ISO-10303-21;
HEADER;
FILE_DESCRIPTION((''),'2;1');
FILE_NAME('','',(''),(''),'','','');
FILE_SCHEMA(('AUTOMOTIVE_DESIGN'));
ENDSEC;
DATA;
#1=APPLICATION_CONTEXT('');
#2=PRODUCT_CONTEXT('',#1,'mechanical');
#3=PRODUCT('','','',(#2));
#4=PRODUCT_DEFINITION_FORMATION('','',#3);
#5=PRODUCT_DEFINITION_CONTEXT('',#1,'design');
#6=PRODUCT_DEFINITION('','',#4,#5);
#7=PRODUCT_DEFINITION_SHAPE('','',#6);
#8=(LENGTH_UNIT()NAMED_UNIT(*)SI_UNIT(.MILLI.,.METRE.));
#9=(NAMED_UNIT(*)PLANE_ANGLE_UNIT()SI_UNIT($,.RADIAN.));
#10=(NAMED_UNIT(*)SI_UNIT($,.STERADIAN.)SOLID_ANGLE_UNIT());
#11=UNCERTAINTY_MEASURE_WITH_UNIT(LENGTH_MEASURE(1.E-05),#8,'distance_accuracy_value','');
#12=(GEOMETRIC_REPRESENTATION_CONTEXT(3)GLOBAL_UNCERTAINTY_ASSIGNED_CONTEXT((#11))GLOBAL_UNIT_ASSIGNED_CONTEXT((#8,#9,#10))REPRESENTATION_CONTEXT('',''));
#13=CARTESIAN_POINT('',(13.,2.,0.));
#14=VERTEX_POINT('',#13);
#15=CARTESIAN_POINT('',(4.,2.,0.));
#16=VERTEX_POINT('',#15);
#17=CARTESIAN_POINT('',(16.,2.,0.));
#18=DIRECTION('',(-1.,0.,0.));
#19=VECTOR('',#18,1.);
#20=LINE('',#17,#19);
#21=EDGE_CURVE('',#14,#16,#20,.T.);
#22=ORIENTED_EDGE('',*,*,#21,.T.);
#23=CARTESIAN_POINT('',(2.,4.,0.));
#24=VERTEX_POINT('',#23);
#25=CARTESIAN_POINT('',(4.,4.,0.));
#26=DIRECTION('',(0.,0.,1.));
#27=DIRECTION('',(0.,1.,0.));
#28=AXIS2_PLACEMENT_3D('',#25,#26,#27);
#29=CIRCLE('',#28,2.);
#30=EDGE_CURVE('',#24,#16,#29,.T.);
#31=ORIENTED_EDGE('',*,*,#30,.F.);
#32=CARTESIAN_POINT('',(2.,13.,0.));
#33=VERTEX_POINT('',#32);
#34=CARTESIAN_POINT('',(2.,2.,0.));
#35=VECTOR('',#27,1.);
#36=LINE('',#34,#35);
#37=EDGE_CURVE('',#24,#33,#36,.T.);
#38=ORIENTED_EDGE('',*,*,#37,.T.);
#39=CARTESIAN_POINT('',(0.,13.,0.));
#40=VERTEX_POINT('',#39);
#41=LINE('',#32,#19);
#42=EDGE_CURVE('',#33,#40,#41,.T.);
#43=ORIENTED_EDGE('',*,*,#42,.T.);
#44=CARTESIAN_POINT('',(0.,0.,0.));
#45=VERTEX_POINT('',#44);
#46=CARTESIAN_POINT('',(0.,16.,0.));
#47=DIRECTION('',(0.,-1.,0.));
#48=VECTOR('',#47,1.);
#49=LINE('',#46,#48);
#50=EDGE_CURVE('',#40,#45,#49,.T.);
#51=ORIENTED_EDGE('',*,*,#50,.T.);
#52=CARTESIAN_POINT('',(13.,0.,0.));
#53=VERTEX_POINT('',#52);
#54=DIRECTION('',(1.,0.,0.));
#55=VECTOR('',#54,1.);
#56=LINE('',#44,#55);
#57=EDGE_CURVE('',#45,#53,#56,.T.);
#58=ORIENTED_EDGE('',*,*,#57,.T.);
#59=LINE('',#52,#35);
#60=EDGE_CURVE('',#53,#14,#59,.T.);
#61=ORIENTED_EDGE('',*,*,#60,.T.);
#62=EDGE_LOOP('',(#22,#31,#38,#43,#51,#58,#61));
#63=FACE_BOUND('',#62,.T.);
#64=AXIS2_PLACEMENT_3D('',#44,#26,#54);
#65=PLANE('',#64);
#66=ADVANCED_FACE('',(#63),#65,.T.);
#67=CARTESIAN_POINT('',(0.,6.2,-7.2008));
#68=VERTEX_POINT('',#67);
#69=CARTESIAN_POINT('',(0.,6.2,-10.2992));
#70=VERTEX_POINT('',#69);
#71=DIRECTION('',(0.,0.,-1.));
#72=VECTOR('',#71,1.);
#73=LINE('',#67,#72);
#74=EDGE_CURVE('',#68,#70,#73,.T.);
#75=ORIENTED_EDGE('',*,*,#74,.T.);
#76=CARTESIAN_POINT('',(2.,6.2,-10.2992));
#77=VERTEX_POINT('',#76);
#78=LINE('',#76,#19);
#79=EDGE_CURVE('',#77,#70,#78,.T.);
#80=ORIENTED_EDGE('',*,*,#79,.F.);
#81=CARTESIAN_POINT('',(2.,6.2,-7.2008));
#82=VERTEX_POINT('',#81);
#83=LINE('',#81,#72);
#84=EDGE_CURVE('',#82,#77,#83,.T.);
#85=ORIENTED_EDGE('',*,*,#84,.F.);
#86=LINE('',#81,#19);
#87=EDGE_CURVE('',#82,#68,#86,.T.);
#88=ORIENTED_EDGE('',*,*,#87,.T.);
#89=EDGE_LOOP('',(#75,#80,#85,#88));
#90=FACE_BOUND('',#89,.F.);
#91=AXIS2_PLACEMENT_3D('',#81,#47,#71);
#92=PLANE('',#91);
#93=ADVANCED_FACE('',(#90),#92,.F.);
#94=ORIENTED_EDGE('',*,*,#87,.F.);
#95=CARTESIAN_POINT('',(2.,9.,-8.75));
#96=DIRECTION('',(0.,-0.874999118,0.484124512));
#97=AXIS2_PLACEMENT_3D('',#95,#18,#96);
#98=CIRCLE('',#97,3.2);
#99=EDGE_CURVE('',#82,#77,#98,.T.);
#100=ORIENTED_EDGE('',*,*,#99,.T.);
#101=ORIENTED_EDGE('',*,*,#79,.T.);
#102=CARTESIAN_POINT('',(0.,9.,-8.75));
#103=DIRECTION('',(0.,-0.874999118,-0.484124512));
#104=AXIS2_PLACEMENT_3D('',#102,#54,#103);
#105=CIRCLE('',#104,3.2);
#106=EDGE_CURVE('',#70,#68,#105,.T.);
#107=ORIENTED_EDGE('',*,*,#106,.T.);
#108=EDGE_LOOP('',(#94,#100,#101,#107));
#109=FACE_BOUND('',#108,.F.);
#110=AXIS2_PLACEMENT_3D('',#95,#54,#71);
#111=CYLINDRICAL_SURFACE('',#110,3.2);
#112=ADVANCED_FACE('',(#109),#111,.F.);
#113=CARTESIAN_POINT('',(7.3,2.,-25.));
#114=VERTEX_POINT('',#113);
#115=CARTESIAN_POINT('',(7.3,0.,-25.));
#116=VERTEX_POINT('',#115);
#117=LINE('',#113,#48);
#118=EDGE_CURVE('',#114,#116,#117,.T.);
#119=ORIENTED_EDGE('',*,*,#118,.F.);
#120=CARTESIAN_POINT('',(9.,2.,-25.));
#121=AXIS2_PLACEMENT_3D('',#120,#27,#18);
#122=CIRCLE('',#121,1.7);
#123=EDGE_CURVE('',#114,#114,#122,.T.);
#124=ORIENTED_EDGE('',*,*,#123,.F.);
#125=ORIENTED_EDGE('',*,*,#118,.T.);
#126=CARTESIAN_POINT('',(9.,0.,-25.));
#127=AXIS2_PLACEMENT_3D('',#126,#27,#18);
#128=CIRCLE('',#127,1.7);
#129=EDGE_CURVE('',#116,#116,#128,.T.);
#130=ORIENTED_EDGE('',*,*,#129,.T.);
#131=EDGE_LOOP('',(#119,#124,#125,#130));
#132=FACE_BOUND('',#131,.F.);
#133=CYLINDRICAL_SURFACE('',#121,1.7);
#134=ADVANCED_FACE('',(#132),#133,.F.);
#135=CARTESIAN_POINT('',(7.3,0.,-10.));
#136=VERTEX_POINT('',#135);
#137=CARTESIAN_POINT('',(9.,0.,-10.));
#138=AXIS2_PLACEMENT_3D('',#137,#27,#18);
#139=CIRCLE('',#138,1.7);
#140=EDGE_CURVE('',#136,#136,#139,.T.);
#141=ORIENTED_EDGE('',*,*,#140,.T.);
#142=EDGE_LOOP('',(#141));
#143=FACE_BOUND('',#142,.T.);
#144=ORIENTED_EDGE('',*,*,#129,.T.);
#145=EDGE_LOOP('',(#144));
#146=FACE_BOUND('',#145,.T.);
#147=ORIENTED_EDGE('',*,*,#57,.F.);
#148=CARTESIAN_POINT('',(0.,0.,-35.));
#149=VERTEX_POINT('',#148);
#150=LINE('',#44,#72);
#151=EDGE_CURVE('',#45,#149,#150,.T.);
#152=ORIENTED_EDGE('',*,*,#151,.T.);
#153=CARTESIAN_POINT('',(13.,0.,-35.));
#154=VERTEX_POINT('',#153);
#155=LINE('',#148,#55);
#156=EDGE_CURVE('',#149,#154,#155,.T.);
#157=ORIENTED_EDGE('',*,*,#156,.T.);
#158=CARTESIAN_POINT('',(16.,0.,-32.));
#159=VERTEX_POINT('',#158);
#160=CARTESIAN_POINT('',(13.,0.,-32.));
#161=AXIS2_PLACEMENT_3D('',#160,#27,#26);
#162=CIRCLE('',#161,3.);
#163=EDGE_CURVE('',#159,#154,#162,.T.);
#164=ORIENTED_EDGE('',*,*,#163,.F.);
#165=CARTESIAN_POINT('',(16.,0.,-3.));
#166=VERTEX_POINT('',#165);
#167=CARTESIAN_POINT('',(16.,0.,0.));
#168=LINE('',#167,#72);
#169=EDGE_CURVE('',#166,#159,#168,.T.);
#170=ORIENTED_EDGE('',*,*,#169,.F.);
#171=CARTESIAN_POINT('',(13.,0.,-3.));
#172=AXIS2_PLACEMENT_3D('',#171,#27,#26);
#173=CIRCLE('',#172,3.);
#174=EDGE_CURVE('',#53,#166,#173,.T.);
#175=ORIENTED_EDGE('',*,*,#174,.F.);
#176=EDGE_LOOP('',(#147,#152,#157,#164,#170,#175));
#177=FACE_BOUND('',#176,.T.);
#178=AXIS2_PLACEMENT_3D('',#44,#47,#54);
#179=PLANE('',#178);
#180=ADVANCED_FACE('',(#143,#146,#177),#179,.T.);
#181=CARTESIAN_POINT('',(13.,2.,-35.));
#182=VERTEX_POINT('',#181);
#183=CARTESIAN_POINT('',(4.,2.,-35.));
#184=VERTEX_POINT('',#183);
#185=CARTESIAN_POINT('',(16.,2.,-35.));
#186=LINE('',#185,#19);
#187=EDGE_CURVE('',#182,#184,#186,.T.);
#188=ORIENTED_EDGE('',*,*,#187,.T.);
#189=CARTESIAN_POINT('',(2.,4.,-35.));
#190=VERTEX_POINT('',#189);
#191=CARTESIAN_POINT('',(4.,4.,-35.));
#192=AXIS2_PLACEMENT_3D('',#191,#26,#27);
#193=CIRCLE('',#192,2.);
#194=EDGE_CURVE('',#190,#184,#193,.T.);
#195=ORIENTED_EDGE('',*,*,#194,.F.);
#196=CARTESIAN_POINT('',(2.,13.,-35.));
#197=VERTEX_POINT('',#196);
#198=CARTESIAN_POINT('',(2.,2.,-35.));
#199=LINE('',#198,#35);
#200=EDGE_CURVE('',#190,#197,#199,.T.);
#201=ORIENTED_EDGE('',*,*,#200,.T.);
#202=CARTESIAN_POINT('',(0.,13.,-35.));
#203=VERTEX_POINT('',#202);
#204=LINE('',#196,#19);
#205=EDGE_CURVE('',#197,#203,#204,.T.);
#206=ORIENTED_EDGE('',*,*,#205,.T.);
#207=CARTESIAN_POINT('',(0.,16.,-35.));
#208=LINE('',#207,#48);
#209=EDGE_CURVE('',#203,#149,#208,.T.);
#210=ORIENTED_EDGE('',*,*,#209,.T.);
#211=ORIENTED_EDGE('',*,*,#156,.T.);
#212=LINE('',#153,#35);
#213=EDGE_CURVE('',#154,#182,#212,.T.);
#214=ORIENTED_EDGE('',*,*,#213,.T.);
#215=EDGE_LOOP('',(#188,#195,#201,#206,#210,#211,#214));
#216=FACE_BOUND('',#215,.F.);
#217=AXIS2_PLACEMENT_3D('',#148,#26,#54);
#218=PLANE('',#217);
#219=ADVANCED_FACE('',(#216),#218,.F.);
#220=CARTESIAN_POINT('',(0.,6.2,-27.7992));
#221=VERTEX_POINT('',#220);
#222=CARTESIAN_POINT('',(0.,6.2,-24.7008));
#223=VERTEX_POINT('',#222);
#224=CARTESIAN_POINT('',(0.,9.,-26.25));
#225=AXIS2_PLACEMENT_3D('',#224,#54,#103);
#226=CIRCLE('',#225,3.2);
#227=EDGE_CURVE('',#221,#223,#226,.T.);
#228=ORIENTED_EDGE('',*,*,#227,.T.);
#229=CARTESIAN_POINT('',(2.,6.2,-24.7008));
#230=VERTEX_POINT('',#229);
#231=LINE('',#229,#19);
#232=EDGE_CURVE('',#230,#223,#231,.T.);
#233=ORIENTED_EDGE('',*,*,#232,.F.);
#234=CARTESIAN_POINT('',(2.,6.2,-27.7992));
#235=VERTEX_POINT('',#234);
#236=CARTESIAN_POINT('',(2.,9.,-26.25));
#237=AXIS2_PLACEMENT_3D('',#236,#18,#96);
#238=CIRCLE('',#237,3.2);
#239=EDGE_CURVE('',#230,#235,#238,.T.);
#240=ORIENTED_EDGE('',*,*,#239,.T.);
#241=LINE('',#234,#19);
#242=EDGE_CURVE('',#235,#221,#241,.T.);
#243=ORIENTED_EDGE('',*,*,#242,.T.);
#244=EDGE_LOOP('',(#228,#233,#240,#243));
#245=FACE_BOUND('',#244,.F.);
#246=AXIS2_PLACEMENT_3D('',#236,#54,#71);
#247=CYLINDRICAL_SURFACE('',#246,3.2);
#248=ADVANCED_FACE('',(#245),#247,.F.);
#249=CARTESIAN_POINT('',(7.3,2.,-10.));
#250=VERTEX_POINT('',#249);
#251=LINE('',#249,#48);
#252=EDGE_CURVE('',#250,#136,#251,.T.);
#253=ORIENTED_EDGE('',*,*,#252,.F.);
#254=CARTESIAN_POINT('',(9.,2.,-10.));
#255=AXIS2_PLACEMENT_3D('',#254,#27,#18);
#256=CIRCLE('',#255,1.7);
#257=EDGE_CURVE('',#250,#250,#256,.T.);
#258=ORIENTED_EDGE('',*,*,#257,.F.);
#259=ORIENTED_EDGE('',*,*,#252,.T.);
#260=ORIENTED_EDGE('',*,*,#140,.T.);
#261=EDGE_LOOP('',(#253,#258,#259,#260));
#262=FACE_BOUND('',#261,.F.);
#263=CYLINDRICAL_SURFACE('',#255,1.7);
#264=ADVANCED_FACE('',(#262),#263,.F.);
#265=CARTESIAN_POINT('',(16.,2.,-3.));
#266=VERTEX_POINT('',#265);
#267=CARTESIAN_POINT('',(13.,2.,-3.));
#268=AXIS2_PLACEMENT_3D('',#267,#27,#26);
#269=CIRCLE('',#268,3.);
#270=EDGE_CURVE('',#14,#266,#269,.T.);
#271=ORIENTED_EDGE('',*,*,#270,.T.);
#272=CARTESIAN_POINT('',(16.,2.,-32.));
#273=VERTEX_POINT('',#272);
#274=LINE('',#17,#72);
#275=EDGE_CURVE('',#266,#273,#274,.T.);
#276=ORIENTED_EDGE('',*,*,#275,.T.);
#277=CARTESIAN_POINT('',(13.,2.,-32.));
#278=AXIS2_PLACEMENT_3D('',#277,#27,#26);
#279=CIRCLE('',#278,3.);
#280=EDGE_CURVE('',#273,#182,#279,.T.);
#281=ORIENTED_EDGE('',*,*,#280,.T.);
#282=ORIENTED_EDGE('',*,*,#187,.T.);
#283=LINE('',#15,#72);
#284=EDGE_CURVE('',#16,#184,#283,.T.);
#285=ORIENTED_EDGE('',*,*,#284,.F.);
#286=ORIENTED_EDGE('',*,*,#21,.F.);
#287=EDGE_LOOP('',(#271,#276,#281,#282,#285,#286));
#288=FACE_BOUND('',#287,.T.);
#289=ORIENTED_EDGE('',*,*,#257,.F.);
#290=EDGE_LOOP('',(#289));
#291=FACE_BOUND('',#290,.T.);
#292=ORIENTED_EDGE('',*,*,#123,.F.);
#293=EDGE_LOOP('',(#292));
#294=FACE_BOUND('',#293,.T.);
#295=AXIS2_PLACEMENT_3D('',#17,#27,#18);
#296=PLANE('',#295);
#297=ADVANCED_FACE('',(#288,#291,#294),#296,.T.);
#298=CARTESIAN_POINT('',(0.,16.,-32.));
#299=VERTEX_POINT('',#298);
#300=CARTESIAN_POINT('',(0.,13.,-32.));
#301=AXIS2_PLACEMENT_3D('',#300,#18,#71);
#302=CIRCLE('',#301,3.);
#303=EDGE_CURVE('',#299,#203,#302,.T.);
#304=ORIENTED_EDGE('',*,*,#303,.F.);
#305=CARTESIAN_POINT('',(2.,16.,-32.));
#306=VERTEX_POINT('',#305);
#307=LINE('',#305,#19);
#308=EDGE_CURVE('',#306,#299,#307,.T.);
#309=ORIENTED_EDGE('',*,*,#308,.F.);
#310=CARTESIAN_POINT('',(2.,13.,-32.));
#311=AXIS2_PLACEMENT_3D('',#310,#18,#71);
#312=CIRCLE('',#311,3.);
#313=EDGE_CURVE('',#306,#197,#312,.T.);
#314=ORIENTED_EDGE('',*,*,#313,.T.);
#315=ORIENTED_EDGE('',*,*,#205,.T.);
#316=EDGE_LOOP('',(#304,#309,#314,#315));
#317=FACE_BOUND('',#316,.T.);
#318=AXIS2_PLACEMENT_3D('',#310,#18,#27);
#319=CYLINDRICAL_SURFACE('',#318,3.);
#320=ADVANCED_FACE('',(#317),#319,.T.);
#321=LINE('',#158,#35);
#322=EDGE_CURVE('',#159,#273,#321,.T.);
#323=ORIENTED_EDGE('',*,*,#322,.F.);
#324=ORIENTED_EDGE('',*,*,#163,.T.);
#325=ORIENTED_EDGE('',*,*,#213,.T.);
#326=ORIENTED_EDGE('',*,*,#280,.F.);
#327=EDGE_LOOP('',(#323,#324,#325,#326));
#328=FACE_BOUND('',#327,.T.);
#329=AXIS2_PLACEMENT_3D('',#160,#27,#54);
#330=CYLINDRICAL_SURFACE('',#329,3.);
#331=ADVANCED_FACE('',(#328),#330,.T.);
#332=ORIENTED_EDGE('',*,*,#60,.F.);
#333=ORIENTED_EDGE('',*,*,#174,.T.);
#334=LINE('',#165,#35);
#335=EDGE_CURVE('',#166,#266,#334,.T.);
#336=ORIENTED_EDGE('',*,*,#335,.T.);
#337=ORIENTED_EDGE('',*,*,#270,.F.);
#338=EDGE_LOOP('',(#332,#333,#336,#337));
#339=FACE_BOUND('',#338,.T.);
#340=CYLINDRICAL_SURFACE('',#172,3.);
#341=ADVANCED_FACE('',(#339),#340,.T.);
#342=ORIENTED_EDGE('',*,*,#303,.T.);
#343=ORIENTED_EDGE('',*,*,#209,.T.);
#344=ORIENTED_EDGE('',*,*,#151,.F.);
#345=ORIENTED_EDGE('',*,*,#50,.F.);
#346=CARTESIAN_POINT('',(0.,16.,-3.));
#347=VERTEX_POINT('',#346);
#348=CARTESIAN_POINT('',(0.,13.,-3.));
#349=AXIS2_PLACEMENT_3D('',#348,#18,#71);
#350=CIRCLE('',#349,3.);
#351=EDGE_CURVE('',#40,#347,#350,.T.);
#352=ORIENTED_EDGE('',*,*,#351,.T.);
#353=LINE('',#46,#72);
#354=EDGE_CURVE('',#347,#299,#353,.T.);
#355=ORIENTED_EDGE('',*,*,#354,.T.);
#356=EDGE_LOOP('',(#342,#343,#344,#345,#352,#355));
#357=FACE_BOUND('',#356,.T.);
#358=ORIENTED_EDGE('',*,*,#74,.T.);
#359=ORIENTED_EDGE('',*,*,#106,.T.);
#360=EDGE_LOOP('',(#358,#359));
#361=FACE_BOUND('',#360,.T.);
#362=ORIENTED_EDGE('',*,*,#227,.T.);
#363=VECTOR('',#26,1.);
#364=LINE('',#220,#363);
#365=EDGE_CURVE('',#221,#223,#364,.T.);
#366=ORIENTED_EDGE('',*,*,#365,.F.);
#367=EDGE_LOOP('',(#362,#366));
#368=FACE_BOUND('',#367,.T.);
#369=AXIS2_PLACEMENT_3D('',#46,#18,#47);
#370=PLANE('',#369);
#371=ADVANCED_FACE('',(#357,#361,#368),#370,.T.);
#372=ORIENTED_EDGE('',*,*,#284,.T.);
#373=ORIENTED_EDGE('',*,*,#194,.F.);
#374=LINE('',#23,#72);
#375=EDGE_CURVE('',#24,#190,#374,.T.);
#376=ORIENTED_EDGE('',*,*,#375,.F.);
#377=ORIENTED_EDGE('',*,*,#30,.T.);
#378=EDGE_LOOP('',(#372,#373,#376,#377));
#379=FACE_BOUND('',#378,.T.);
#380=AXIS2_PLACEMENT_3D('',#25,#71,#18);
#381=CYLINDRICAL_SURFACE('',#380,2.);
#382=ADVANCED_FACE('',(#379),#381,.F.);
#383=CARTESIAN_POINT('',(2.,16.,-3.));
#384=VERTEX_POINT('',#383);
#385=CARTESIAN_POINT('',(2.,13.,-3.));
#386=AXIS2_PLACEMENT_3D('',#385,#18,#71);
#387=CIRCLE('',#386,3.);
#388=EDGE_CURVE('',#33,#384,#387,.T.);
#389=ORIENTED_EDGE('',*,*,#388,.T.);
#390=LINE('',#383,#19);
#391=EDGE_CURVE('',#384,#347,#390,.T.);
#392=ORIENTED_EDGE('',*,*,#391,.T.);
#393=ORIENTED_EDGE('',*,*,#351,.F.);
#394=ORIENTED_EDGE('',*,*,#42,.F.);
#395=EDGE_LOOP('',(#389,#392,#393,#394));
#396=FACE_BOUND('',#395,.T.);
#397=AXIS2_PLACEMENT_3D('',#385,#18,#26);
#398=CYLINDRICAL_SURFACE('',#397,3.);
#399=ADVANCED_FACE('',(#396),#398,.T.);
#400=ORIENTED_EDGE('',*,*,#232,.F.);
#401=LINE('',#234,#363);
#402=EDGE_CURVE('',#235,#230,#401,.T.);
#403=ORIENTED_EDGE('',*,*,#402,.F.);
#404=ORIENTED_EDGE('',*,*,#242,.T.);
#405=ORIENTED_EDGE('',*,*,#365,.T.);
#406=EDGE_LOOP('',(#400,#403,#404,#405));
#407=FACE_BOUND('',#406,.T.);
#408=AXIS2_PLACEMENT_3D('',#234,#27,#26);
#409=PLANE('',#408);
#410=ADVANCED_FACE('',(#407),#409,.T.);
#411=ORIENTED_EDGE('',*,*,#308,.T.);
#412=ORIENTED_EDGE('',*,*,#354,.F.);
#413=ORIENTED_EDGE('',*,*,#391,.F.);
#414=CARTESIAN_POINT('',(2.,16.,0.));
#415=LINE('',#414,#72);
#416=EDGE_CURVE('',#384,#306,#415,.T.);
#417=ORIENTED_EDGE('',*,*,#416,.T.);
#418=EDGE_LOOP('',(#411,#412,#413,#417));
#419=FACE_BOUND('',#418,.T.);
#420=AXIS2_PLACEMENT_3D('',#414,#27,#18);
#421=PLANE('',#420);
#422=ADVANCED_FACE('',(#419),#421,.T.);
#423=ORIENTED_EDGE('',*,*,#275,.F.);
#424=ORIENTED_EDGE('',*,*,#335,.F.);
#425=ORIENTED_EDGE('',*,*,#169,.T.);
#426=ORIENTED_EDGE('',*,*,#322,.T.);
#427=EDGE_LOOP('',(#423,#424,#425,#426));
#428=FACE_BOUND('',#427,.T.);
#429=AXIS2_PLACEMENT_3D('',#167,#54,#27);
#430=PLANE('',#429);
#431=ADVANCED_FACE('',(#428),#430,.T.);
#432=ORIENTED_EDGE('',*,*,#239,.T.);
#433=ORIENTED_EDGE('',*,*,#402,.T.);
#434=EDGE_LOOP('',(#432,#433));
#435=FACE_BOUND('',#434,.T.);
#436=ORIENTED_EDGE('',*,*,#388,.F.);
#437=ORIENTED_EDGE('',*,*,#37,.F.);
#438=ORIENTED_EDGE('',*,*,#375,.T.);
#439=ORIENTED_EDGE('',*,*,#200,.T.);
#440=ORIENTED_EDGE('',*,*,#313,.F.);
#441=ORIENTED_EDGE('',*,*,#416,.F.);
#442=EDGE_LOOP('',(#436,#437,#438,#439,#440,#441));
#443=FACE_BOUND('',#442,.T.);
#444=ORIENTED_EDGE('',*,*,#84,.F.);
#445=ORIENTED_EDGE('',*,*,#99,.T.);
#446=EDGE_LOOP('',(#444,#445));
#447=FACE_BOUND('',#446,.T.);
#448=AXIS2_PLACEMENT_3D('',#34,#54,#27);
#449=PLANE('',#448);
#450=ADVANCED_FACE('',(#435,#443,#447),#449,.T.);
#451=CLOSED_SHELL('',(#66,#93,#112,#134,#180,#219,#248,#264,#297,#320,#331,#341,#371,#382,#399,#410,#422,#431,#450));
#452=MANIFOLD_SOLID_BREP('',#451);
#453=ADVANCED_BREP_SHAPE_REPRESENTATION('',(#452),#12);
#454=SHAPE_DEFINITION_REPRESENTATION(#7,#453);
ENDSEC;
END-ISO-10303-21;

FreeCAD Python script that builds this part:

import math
import FreeCAD as App
import Part
import Sketcher

V = App.Vector
Q = App.Units.Quantity


def edges_at(feature, points):
    """Names of the edges that pass closest to the given points."""
    edges = feature.Shape.Edges
    near = lambda p: min(range(len(edges)), key=lambda i: edges[i].distToShape(Part.Vertex(*p))[0])
    return sorted({f"Edge{near(p) + 1}" for p in points})


def add_polygon(sketch, points):
    """Adds a closed chain of lines whose ends are joined by coincident constraints."""
    first, n = sketch.GeometryCount, len(points)
    for a, b in zip(points, points[1:] + points[:1]):
        sketch.addGeometry(Part.LineSegment(App.Vector(*a, 0), App.Vector(*b, 0)), False)
    for i in range(n):
        sketch.addConstraint(Sketcher.Constraint("Coincident", first + i, 2, first + (i + 1) % n, 1))

doc = App.newDocument("Part")
params = doc.addObject("Spreadsheet::Sheet", "Params")
for row, (alias, value) in enumerate([
    ("sketch1_width", "16 mm"),
    ("sketch1_width2", "2 mm"),
    ("pad1_length", "35 mm"),
    ("sketch2_diameter", "3.4 mm"),
    ("pocket1_length", "2 mm"),
    ("sketch3_radius", "3.2 mm"),
    ("pocket2_length", "2 mm"),
    ("fillet_radius", "2 mm"),
    ("fillet2_radius", "3 mm"),
], start=1):
    params.set(f"A{row}", alias)
    params.set(f"B{row}", "=" + value)
    params.setAlias(f"B{row}", alias)

body = doc.addObject("PartDesign::Body", "Body")

# Sketch on XY plane
sketch1 = body.newObject("Sketcher::SketchObject", "Sketch")
sketch1.AttachmentSupport = (doc.getObject("XY_Plane"), [""])
sketch1.MapMode = "FlatFace"
add_polygon(sketch1, [(0, 16), (0, 0), (16, 0), (16, 2), (2, 2), (2, 16)])  # lines 0-5
sketch1.addConstraint([
    Sketcher.Constraint("Vertical", 0),
    Sketcher.Constraint("Horizontal", 1),
    Sketcher.Constraint("Vertical", 2),
    Sketcher.Constraint("Horizontal", 3),
    Sketcher.Constraint("Vertical", 4),
    Sketcher.Constraint("Horizontal", 5),
    Sketcher.Constraint("Coincident", 0, 2, -1, 1),
    Sketcher.Constraint("Equal", 1, 0),
    Sketcher.Constraint("Equal", 5, 2),
    Sketcher.Constraint("DistanceX", 1, 1, 1, 2, Q("16 mm")),
    Sketcher.Constraint("DistanceX", 5, 2, 5, 1, Q("2 mm")),
])
sketch1.setExpression("Constraints[15]", "Params.sketch1_width")
sketch1.setExpression("Constraints[16]", "Params.sketch1_width2")
pad1 = body.newObject("PartDesign::Pad", "Pad")
pad1.Profile = sketch1
pad1.setExpression("Length", "Params.pad1_length")
pad1.Reversed = True

# Sketch on XZ plane
sketch2 = body.newObject("Sketcher::SketchObject", "Sketch001")
sketch2.AttachmentSupport = (doc.getObject("XZ_Plane"), [""])
sketch2.MapMode = "FlatFace"
sketch2.AttachmentOffset = App.Placement(V(0, 0, -2), App.Rotation())
sketch2.addGeometry([
    Part.Circle(V(9, -10, 0), V(0, 0, 1), 1.7),
    Part.Circle(V(9, -25, 0), V(0, 0, 1), 1.7),
], False)
sketch2.addConstraint([
    Sketcher.Constraint("Equal", 0, 1),
    Sketcher.Constraint("Vertical", 0, 3, 1, 3),
    Sketcher.Constraint("Diameter", 0, Q("3.4 mm")),
    Sketcher.Constraint("DistanceX", -1, 1, 0, 3, Q("9 mm")),
    Sketcher.Constraint("DistanceY", 0, 3, -1, 1, Q("10 mm")),
    Sketcher.Constraint("DistanceY", 1, 3, -1, 1, Q("25 mm")),
])
sketch2.setExpression("Constraints[2]", "Params.sketch2_diameter")
pocket1 = body.newObject("PartDesign::Pocket", "Pocket")
pocket1.Profile = sketch2
pocket1.setExpression("Length", "Params.pocket1_length")
pocket1.Reversed = True

# Sketch on YZ plane
sketch3 = body.newObject("Sketcher::SketchObject", "Sketch002")
sketch3.AttachmentSupport = (doc.getObject("YZ_Plane"), [""])
sketch3.MapMode = "FlatFace"
sketch3.AttachmentOffset = App.Placement(V(0, 0, 2), App.Rotation())
sketch3.addGeometry([
    Part.ArcOfCircle(Part.Circle(V(9, -8.8, 0), V(0, 0, 1), 3.2), math.radians(-151), math.radians(151)),
    Part.LineSegment(V(6.2, -10.3, 0), V(6.2, -7.2, 0)),
    Part.ArcOfCircle(Part.Circle(V(9, -26.2, 0), V(0, 0, 1), 3.2), math.radians(-151), math.radians(151)),
    Part.LineSegment(V(6.2, -27.8, 0), V(6.2, -24.7, 0)),
], False)
sketch3.addConstraint([
    Sketcher.Constraint("Coincident", 0, 1, 1, 1),
    Sketcher.Constraint("Coincident", 1, 2, 0, 2),
    Sketcher.Constraint("Coincident", 2, 1, 3, 1),
    Sketcher.Constraint("Coincident", 3, 2, 2, 2),
    Sketcher.Constraint("Vertical", 1),
    Sketcher.Constraint("Vertical", 3),
    Sketcher.Constraint("Equal", 0, 2),
    Sketcher.Constraint("Vertical", 0, 3, 2, 3),
    Sketcher.Constraint("Vertical", 1, 2, 2, 1),
    Sketcher.Constraint("Radius", 0, Q("3.2 mm")),
    Sketcher.Constraint("DistanceY", 0, 3, -1, 1, Q("8.75 mm")),
    Sketcher.Constraint("DistanceX", -1, 1, 0, 3, Q("9 mm")),
    Sketcher.Constraint("DistanceX", -1, 1, 0, 1, Q("6.2 mm")),
    Sketcher.Constraint("DistanceY", 2, 3, 0, 3, Q("17.5 mm")),
])
sketch3.setExpression("Constraints[9]", "Params.sketch3_radius")
pocket2 = body.newObject("PartDesign::Pocket", "Pocket001")
pocket2.Profile = sketch3
pocket2.setExpression("Length", "Params.pocket2_length")
doc.recompute()

fillet = body.newObject("PartDesign::Fillet", "Fillet")
fillet.Base = (pocket2, edges_at(pocket2, [(2, 2, -17.5)]))
fillet.setExpression("Radius", "Params.fillet_radius")
doc.recompute()

fillet2 = body.newObject("PartDesign::Fillet", "Fillet001")
fillet2.Base = (fillet, edges_at(fillet, [
    (1, 16, -35),
    (1, 16, 0),
    (16, 1, 0),
    (16, 1, -35),
]))
fillet2.setExpression("Radius", "Params.fillet2_radius")

doc.recompute()
